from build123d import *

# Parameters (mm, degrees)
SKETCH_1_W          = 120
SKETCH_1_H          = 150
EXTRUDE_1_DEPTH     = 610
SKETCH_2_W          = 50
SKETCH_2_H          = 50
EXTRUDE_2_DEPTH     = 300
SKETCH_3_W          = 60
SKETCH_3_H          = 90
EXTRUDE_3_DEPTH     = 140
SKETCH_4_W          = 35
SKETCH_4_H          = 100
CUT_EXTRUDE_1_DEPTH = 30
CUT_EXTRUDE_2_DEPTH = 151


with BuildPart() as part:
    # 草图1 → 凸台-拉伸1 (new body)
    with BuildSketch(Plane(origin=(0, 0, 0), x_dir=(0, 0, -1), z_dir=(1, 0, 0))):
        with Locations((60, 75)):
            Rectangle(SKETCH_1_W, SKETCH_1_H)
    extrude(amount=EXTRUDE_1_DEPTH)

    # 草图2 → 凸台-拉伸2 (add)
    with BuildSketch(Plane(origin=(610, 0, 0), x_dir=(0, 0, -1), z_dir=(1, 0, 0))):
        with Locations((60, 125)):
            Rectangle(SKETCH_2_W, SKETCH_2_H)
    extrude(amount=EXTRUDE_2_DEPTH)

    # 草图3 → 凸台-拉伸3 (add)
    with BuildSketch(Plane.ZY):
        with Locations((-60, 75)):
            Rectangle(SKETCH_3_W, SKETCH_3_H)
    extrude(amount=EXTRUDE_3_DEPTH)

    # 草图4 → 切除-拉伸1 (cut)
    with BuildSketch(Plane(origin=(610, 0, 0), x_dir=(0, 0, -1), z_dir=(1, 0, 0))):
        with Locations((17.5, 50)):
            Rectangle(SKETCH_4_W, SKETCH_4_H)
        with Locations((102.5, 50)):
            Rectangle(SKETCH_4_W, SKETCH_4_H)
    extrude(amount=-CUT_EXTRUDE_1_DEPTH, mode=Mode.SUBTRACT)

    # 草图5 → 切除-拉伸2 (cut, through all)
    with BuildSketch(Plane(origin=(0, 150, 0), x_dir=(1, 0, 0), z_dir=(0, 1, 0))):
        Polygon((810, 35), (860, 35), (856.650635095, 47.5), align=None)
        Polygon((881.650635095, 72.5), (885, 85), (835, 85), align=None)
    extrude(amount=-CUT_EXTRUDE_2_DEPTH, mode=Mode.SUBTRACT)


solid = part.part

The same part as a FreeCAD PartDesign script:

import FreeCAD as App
import Part
import Sketcher
from FreeCAD import Vector
Q = App.Units.Quantity

doc = App.newDocument("Part")
body = doc.addObject("PartDesign::Body", "Body")

sketch1 = doc.addObject("Sketcher::SketchObject", "Sketch")
body.addObject(sketch1)
sketch1.AttachmentSupport = (doc.YZ_Plane, [""])
sketch1.MapMode = "FlatFace"
sketch1.addGeometry([
    Part.LineSegment(Vector(150, 0, 0), Vector(0, 0, 0)),
    Part.LineSegment(Vector(0, 0, 0), Vector(0, -120, 0)),
    Part.LineSegment(Vector(0, -120, 0), Vector(150, -120, 0)),
    Part.LineSegment(Vector(150, -120, 0), Vector(150, 0, 0)),
], False)
sketch1.addConstraint([
    Sketcher.Constraint("Coincident", 0, 2, 1, 1),
    Sketcher.Constraint("Coincident", 1, 2, 2, 1),
    Sketcher.Constraint("Coincident", 2, 2, 3, 1),
    Sketcher.Constraint("Coincident", 3, 2, 0, 1),
    Sketcher.Constraint("Horizontal", 0),
    Sketcher.Constraint("Vertical", 1),
    Sketcher.Constraint("Horizontal", 2),
    Sketcher.Constraint("Vertical", 3),
    Sketcher.Constraint("Coincident", 0, 2, -1, 1),
    Sketcher.Constraint("DistanceX", 0, 2, 0, 1, Q("150 mm")),
    Sketcher.Constraint("DistanceY", 1, 2, 1, 1, Q("120 mm")),
])
pad1 = doc.addObject("PartDesign::Pad", "Pad")
body.addObject(pad1)
pad1.Profile = sketch1
pad1.Length = 610

sketch2 = doc.addObject("Sketcher::SketchObject", "Sketch001")
body.addObject(sketch2)
sketch2.AttachmentSupport = (doc.YZ_Plane, [""])
sketch2.MapMode = "FlatFace"
sketch2.AttachmentOffset = App.Placement(Vector(0, 0, 610), App.Rotation())
sketch2.addGeometry([
    Part.LineSegment(Vector(150, -35, 0), Vector(100, -35, 0)),
    Part.LineSegment(Vector(100, -35, 0), Vector(100, -85, 0)),
    Part.LineSegment(Vector(100, -85, 0), Vector(150, -85, 0)),
    Part.LineSegment(Vector(150, -85, 0), Vector(150, -35, 0)),
], False)
sketch2.addConstraint([
    Sketcher.Constraint("Coincident", 0, 2, 1, 1),
    Sketcher.Constraint("Coincident", 1, 2, 2, 1),
    Sketcher.Constraint("Coincident", 2, 2, 3, 1),
    Sketcher.Constraint("Coincident", 3, 2, 0, 1),
    Sketcher.Constraint("Horizontal", 0),
    Sketcher.Constraint("Vertical", 1),
    Sketcher.Constraint("Horizontal", 2),
    Sketcher.Constraint("Vertical", 3),
    Sketcher.Constraint("Equal", 2, 1),
    Sketcher.Constraint("DistanceX", 0, 2, 0, 1, Q("50 mm")),
    Sketcher.Constraint("DistanceX", -1, 1, 0, 2, Q("100 mm")),
    Sketcher.Constraint("DistanceY", 0, 2, -1, 1, Q("35 mm")),
])
pad2 = doc.addObject("PartDesign::Pad", "Pad001")
body.addObject(pad2)
pad2.Profile = sketch2
pad2.Length = 300

sketch3 = doc.addObject("Sketcher::SketchObject", "Sketch002")
body.addObject(sketch3)
sketch3.AttachmentSupport = (doc.YZ_Plane, [""])
sketch3.MapMode = "FlatFace"
sketch3.addGeometry([
    Part.LineSegment(Vector(120, -90, 0), Vector(30, -90, 0)),
    Part.LineSegment(Vector(30, -90, 0), Vector(30, -30, 0)),
    Part.LineSegment(Vector(30, -30, 0), Vector(120, -30, 0)),
    Part.LineSegment(Vector(120, -30, 0), Vector(120, -90, 0)),
], False)
sketch3.addConstraint([
    Sketcher.Constraint("Coincident", 0, 2, 1, 1),
    Sketcher.Constraint("Coincident", 1, 2, 2, 1),
    Sketcher.Constraint("Coincident", 2, 2, 3, 1),
    Sketcher.Constraint("Coincident", 3, 2, 0, 1),
    Sketcher.Constraint("Horizontal", 0),
    Sketcher.Constraint("Vertical", 1),
    Sketcher.Constraint("Horizontal", 2),
    Sketcher.Constraint("Vertical", 3),
    Sketcher.Constraint("DistanceX", 0, 2, 0, 1, Q("90 mm")),
    Sketcher.Constraint("DistanceY", 1, 1, 1, 2, Q("60 mm")),
    Sketcher.Constraint("DistanceX", -1, 1, 0, 2, Q("30 mm")),
    Sketcher.Constraint("DistanceY", 0, 2, -1, 1, Q("90 mm")),
])
pad3 = doc.addObject("PartDesign::Pad", "Pad002")
body.addObject(pad3)
pad3.Profile = sketch3
pad3.Length = 140
pad3.Reversed = True

sketch4 = doc.addObject("Sketcher::SketchObject", "Sketch003")
body.addObject(sketch4)
sketch4.AttachmentSupport = (doc.YZ_Plane, [""])
sketch4.MapMode = "FlatFace"
sketch4.AttachmentOffset = App.Placement(Vector(0, 0, 610), App.Rotation())
sketch4.addGeometry([
    Part.LineSegment(Vector(100, 0, 0), Vector(0, 0, 0)),
    Part.LineSegment(Vector(0, 0, 0), Vector(0, -35, 0)),
    Part.LineSegment(Vector(0, -35, 0), Vector(100, -35, 0)),
    Part.LineSegment(Vector(100, -35, 0), Vector(100, 0, 0)),
    Part.LineSegment(Vector(100, -85, 0), Vector(0, -85, 0)),
    Part.LineSegment(Vector(0, -85, 0), Vector(0, -120, 0)),
    Part.LineSegment(Vector(0, -120, 0), Vector(100, -120, 0)),
    Part.LineSegment(Vector(100, -120, 0), Vector(100, -85, 0)),
], False)
sketch4.addConstraint([
    Sketcher.Constraint("Coincident", 0, 2, 1, 1),
    Sketcher.Constraint("Coincident", 1, 2, 2, 1),
    Sketcher.Constraint("Coincident", 2, 2, 3, 1),
    Sketcher.Constraint("Coincident", 3, 2, 0, 1),
    Sketcher.Constraint("Coincident", 4, 2, 5, 1),
    Sketcher.Constraint("Coincident", 5, 2, 6, 1),
    Sketcher.Constraint("Coincident", 6, 2, 7, 1),
    Sketcher.Constraint("Coincident", 7, 2, 4, 1),
    Sketcher.Constraint("Horizontal", 0),
    Sketcher.Constraint("Vertical", 1),
    Sketcher.Constraint("Horizontal", 2),
    Sketcher.Constraint("Vertical", 3),
    Sketcher.Constraint("Horizontal", 4),
    Sketcher.Constraint("Vertical", 5),
    Sketcher.Constraint("Horizontal", 6),
    Sketcher.Constraint("Vertical", 7),
    Sketcher.Constraint("Coincident", 0, 2, -1, 1),
    Sketcher.Constraint("PointOnObject", 4, 2, -2),
    Sketcher.Constraint("Vertical", 3, 2, 6, 2),
    Sketcher.Constraint("Equal", 3, 5),
    Sketcher.Constraint("DistanceX", 0, 2, 0, 1, Q("100 mm")),
    Sketcher.Constraint("DistanceY", 1, 2, 1, 1, Q("35 mm")),
    Sketcher.Constraint("DistanceY", 4, 2, -1, 1, Q("85 mm")),
])
pocket1 = doc.addObject("PartDesign::Pocket", "Pocket")
body.addObject(pocket1)
pocket1.Profile = sketch4
pocket1.Length = 30

sketch5 = doc.addObject("Sketcher::SketchObject", "Sketch004")
body.addObject(sketch5)
sketch5.AttachmentSupport = (doc.XZ_Plane, [""])
sketch5.MapMode = "FlatFace"
sketch5.AttachmentOffset = App.Placement(Vector(0, 0, -150), App.Rotation())
sketch5.addGeometry([
    Part.LineSegment(Vector(810, -35, 0), Vector(860, -35, 0)),
    Part.LineSegment(Vector(860, -35, 0), Vector(856.650635, -47.5, 0)),
    Part.LineSegment(Vector(856.650635, -47.5, 0), Vector(810, -35, 0)),
    Part.LineSegment(Vector(881.650635, -72.5, 0), Vector(885, -85, 0)),
    Part.LineSegment(Vector(885, -85, 0), Vector(835, -85, 0)),
    Part.LineSegment(Vector(835, -85, 0), Vector(881.650635, -72.5, 0)),
], False)
sketch5.addConstraint([
    Sketcher.Constraint("Coincident", 0, 2, 1, 1),
    Sketcher.Constraint("Coincident", 1, 2, 2, 1),
    Sketcher.Constraint("Coincident", 2, 2, 0, 1),
    Sketcher.Constraint("Coincident", 3, 2, 4, 1),
    Sketcher.Constraint("Coincident", 4, 2, 5, 1),
    Sketcher.Constraint("Coincident", 5, 2, 3, 1),
    Sketcher.Constraint("Horizontal", 0),
    Sketcher.Constraint("Horizontal", 4),
    Sketcher.Constraint("Perpendicular", 1, 2),
    Sketcher.Constraint("Perpendicular", 3, 5),
    Sketcher.Constraint("Equal", 0, 4),
    Sketcher.Constraint("Equal", 1, 3),
    Sketcher.Constraint("DistanceX", 0, 1, 0, 2, Q("50 mm")),
    Sketcher.Constraint("Angle", 1, Q("-105 deg")),
    Sketcher.Constraint("DistanceX", -1, 1, 0, 2, Q("860 mm")),
    Sketcher.Constraint("DistanceY", 0, 2, -1, 1, Q("35 mm")),
    Sketcher.Constraint("DistanceX", -1, 1, 3, 2, Q("885 mm")),
    Sketcher.Constraint("DistanceY", 3, 2, -1, 1, Q("85 mm")),
])
pocket2 = doc.addObject("PartDesign::Pocket", "Pocket001")
body.addObject(pocket2)
pocket2.Profile = sketch5
pocket2.Type = "ThroughAll"
pocket2.Reversed = True

doc.recompute()
